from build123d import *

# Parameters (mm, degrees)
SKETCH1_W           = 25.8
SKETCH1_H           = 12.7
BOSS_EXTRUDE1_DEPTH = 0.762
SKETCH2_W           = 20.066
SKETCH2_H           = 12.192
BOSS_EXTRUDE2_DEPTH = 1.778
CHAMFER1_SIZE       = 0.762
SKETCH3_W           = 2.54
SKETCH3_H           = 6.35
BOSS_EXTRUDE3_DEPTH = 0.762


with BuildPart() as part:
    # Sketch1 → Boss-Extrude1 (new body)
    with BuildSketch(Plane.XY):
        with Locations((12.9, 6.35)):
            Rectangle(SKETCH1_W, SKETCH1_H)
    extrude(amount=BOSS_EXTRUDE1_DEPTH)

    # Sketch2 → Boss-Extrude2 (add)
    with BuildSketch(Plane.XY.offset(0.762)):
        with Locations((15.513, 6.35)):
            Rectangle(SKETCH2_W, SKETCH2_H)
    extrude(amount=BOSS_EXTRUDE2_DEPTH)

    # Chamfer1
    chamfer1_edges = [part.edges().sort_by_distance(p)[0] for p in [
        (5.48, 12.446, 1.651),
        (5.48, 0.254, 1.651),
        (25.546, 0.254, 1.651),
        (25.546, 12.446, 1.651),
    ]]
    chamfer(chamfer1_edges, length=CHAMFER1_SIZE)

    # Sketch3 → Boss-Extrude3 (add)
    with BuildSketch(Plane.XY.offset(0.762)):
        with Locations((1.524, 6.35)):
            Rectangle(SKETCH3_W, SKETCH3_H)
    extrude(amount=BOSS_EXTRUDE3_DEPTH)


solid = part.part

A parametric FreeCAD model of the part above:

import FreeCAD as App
import Part
import Sketcher

V = App.Vector
Q = App.Units.Quantity


def edges_at(feature, points):
    """Names of the edges that pass closest to the given points."""
    edges = feature.Shape.Edges
    near = lambda p: min(range(len(edges)), key=lambda i: edges[i].distToShape(Part.Vertex(*p))[0])
    return sorted({f"Edge{near(p) + 1}" for p in points})


def add_polygon(sketch, points):
    """Adds a closed chain of lines whose ends are joined by coincident constraints."""
    first, n = sketch.GeometryCount, len(points)
    for a, b in zip(points, points[1:] + points[:1]):
        sketch.addGeometry(Part.LineSegment(App.Vector(*a, 0), App.Vector(*b, 0)), False)
    for i in range(n):
        sketch.addConstraint(Sketcher.Constraint("Coincident", first + i, 2, first + (i + 1) % n, 1))

doc = App.newDocument("Part")
body = doc.addObject("PartDesign::Body", "Body")

sketch1 = doc.addObject("Sketcher::SketchObject", "Sketch")
body.addObject(sketch1)
sketch1.AttachmentSupport = (doc.XY_Plane, [""])
sketch1.MapMode = "FlatFace"
add_polygon(sketch1, [(0, 12.7), (0, 0), (25.8, 0), (25.8, 12.7)])
sketch1.addConstraint([
    Sketcher.Constraint("Vertical", 0),
    Sketcher.Constraint("Horizontal", 1),
    Sketcher.Constraint("Vertical", 2),
    Sketcher.Constraint("Horizontal", 3),
    Sketcher.Constraint("Coincident", 0, 2, -1, 1),
    Sketcher.Constraint("DistanceY", 0, 2, 0, 1, Q("0.5 in")),
    Sketcher.Constraint("DistanceX", 1, 1, 1, 2, 25.8),
])
pad1 = doc.addObject("PartDesign::Pad", "Pad")
body.addObject(pad1)
pad1.Profile = sketch1
pad1.Length = Q("0.03 in")

sketch2 = doc.addObject("Sketcher::SketchObject", "Sketch001")
body.addObject(sketch2)
sketch2.AttachmentSupport = (doc.XY_Plane, [""])
sketch2.MapMode = "FlatFace"
sketch2.AttachmentOffset = App.Placement(V(0, 0, 0.03 * 25.4), App.Rotation())
add_polygon(sketch2, [(5.48, 12.446), (5.48, 0.254), (25.546, 0.254), (25.546, 12.446)])
sketch2.addConstraint([
    Sketcher.Constraint("Vertical", 0),
    Sketcher.Constraint("Horizontal", 1),
    Sketcher.Constraint("Vertical", 2),
    Sketcher.Constraint("Horizontal", 3),
    Sketcher.Constraint("DistanceX", 1, 1, 1, 2, Q("0.79 in")),
    Sketcher.Constraint("DistanceY", 0, 2, 0, 1, Q("0.48 in")),
    Sketcher.Constraint("DistanceY", -1, 1, 0, 2, Q("0.01 in")),
    Sketcher.Constraint("DistanceX", -1, 1, 0, 2, 5.48),
])
pad2 = doc.addObject("PartDesign::Pad", "Pad001")
body.addObject(pad2)
pad2.Profile = sketch2
pad2.Length = Q("0.07 in")
doc.recompute()

chamfer = doc.addObject("PartDesign::Chamfer", "Chamfer")
body.addObject(chamfer)
chamfer.Base = (pad2, edges_at(pad2, [
    (5.48, 12.446, 1.651),
    (5.48, 0.254, 1.651),
    (25.546, 0.254, 1.651),
    (25.546, 12.446, 1.651),
]))
chamfer.Size = Q("0.03 in")

sketch3 = doc.addObject("Sketcher::SketchObject", "Sketch002")
body.addObject(sketch3)
sketch3.AttachmentSupport = (doc.XY_Plane, [""])
sketch3.MapMode = "FlatFace"
sketch3.AttachmentOffset = App.Placement(V(0, 0, 0.03 * 25.4), App.Rotation())
add_polygon(sketch3, [(0.254, 9.525), (0.254, 3.175), (2.794, 3.175), (2.794, 9.525)])
sketch3.addConstraint([
    Sketcher.Constraint("Vertical", 0),
    Sketcher.Constraint("Horizontal", 1),
    Sketcher.Constraint("Vertical", 2),
    Sketcher.Constraint("Horizontal", 3),
    Sketcher.Constraint("DistanceX", 1, 1, 1, 2, Q("0.1 in")),
    Sketcher.Constraint("DistanceY", 0, 2, 0, 1, Q("0.25 in")),
    Sketcher.Constraint("DistanceX", -1, 1, 0, 2, Q("0.01 in")),
    Sketcher.Constraint("DistanceY", -1, 1, 0, 2, Q("0.125 in")),
])
pad3 = doc.addObject("PartDesign::Pad", "Pad002")
body.addObject(pad3)
pad3.Profile = sketch3
pad3.Length = Q("0.03 in")

doc.recompute()
